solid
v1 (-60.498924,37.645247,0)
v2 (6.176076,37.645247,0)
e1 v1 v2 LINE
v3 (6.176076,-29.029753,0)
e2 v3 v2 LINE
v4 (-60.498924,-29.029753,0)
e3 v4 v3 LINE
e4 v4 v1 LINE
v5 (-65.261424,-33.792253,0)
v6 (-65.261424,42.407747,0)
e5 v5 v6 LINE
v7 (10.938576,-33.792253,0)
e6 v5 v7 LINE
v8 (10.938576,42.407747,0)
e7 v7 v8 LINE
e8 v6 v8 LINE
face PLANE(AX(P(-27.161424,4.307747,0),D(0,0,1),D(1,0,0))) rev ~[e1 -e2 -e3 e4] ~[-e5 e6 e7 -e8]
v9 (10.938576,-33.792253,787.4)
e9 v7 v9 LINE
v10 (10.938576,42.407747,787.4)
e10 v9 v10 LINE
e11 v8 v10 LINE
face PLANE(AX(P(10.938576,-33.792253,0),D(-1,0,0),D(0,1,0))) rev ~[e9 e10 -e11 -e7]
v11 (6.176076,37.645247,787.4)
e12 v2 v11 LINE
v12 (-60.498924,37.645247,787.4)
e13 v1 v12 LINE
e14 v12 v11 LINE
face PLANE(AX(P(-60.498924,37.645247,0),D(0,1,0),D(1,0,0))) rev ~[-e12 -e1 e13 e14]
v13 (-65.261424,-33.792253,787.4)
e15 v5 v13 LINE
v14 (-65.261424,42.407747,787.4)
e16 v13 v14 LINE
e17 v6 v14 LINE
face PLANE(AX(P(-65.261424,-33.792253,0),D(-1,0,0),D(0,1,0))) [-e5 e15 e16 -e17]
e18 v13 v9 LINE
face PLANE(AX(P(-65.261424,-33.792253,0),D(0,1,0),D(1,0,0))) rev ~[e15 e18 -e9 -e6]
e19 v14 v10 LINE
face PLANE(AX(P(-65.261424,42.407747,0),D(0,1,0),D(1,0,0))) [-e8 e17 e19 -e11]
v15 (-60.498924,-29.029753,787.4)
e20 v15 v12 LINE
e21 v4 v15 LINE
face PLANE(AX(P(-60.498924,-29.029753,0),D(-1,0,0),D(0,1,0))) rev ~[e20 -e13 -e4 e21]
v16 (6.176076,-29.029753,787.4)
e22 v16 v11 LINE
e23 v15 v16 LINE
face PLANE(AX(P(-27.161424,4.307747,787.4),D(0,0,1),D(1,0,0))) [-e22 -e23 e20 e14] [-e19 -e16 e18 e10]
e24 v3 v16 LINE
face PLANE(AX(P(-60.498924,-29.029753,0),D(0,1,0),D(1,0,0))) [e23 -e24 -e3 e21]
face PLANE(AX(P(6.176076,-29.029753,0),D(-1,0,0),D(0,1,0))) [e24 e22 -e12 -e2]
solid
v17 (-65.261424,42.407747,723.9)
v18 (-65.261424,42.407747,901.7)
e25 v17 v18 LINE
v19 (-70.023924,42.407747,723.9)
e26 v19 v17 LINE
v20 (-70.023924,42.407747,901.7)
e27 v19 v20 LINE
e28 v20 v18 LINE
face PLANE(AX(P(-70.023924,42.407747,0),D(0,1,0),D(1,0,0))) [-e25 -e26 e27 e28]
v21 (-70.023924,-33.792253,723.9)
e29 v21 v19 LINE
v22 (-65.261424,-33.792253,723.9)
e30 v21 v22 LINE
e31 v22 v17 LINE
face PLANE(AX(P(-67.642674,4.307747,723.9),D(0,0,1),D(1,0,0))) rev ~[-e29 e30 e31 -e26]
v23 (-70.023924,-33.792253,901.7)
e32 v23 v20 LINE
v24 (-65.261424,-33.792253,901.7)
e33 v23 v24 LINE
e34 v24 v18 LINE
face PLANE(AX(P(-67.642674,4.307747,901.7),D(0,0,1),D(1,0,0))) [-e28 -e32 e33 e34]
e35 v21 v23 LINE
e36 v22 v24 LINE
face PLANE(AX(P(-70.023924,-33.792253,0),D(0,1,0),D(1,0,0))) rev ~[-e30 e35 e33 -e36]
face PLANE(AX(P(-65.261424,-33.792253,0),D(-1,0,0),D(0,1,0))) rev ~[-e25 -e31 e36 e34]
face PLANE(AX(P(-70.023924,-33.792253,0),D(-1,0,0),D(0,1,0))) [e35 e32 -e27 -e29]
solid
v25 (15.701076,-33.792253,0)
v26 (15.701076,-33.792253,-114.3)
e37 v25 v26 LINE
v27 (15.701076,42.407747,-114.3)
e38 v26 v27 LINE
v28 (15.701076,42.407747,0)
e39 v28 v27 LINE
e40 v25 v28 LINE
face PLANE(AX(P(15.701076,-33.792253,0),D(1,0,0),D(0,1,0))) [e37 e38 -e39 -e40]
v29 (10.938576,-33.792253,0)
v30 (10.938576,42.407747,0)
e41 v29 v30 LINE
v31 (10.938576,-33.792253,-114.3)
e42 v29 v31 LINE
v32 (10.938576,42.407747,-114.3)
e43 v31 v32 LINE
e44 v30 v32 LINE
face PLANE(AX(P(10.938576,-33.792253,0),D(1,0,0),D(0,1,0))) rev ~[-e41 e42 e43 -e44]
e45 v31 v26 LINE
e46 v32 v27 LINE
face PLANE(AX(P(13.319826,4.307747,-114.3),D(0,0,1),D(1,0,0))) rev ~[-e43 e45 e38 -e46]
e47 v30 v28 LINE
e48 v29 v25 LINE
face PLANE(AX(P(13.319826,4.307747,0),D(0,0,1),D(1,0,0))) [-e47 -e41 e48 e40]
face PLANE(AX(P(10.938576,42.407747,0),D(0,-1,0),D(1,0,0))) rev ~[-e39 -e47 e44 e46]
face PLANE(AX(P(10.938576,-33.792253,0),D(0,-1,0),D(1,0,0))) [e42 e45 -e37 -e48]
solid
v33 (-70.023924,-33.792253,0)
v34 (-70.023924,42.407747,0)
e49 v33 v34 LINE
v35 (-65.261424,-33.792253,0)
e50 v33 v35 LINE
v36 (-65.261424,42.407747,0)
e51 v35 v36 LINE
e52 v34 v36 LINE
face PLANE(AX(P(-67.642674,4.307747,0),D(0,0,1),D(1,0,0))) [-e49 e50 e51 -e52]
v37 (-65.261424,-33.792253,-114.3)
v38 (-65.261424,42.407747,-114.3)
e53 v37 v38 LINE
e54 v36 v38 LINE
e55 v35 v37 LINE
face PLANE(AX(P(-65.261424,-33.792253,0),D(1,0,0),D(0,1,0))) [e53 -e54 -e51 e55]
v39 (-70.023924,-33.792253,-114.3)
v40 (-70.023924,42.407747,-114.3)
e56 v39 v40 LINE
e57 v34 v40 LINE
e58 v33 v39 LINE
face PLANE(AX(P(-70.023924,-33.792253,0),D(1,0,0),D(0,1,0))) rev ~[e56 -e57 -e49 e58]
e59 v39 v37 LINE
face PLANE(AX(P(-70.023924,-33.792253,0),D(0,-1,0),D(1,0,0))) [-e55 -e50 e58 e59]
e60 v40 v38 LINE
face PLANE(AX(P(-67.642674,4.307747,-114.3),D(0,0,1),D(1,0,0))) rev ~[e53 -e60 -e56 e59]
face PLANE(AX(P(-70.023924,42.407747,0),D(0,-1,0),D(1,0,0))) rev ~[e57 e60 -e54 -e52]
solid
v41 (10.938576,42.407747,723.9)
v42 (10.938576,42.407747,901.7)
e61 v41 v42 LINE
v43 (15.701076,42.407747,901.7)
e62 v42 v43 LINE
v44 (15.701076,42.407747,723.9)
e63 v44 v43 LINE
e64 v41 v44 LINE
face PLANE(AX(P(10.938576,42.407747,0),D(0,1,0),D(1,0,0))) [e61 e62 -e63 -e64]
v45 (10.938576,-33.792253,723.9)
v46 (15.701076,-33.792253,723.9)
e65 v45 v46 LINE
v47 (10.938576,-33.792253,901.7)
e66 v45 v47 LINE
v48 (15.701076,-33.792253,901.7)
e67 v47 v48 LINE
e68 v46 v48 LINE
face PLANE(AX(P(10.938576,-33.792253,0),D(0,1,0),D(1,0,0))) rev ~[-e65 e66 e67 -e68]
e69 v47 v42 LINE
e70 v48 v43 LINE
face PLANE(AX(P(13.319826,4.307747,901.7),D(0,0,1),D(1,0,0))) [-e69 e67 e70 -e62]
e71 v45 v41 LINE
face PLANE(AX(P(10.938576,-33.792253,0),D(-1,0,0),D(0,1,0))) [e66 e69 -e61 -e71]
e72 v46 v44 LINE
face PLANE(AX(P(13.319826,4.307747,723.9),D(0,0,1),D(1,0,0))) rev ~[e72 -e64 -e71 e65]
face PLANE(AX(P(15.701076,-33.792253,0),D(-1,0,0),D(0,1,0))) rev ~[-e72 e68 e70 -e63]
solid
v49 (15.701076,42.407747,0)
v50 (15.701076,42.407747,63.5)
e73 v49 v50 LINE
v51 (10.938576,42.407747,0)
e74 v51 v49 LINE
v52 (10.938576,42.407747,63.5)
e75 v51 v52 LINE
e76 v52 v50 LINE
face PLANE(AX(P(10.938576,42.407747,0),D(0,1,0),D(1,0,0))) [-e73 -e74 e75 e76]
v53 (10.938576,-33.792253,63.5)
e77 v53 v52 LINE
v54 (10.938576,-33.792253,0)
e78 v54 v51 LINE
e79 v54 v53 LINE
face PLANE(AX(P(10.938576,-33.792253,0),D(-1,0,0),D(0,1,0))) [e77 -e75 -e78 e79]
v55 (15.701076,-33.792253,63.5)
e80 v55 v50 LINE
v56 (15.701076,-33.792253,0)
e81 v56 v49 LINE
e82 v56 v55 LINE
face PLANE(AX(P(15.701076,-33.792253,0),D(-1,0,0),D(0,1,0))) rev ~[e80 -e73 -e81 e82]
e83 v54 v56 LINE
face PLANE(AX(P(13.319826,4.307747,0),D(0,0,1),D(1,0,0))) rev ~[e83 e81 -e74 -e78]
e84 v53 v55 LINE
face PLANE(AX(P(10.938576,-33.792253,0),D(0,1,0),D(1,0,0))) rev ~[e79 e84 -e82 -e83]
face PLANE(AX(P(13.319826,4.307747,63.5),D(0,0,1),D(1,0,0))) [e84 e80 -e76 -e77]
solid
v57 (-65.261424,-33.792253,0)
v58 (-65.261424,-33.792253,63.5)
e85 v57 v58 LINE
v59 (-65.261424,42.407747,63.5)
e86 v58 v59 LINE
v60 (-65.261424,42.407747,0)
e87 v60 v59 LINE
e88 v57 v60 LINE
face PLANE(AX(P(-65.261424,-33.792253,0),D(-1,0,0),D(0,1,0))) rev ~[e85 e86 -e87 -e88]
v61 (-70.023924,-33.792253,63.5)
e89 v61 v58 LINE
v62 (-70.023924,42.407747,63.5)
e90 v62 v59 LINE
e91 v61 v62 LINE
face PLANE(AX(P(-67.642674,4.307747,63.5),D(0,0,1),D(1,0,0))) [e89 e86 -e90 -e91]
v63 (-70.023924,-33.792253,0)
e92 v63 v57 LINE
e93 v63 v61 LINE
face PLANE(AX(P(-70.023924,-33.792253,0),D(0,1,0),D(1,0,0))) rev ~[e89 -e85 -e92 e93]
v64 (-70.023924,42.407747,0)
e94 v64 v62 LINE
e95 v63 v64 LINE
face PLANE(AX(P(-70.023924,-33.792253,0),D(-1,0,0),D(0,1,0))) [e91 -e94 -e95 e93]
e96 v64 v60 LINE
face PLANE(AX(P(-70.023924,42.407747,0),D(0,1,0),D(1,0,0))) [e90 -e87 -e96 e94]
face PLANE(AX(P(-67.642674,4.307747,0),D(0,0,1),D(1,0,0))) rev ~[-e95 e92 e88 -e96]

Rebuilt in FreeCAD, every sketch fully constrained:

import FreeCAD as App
import Part
import Sketcher

V = App.Vector
Q = App.Units.Quantity


def add_polygon(sketch, points):
    """Adds a closed chain of lines whose ends are joined by coincident constraints."""
    first, n = sketch.GeometryCount, len(points)
    for a, b in zip(points, points[1:] + points[:1]):
        sketch.addGeometry(Part.LineSegment(App.Vector(*a, 0), App.Vector(*b, 0)), False)
    for i in range(n):
        sketch.addConstraint(Sketcher.Constraint("Coincident", first + i, 2, first + (i + 1) % n, 1))

doc = App.newDocument("Part")
body = doc.addObject("PartDesign::Body", "Body")

# Sketch on XY plane
sketch1 = body.newObject("Sketcher::SketchObject", "Sketch")
sketch1.AttachmentSupport = (doc.getObject("XY_Plane"), [""])
sketch1.MapMode = "FlatFace"
add_polygon(sketch1, [(-65.261424, 42.407747), (-65.261424, -33.792253), (10.938576, -33.792253), (10.938576, 42.407747)])  # lines 0-3
add_polygon(sketch1, [(6.176076, -29.029753), (-60.498924, -29.029753), (-60.498924, 37.645247), (6.176076, 37.645247)])  # lines 4-7
sketch1.addConstraint(Sketcher.Constraint("Vertical", 0))
sketch1.addConstraint(Sketcher.Constraint("Horizontal", 1))
sketch1.addConstraint(Sketcher.Constraint("Vertical", 2))
sketch1.addConstraint(Sketcher.Constraint("Horizontal", 3))
sketch1.addConstraint(Sketcher.Constraint("Horizontal", 4))
sketch1.addConstraint(Sketcher.Constraint("Vertical", 5))
sketch1.addConstraint(Sketcher.Constraint("Horizontal", 6))
sketch1.addConstraint(Sketcher.Constraint("Vertical", 7))
sketch1.addConstraint(Sketcher.Constraint("Equal", 3, 0))
sketch1.addConstraint(Sketcher.Constraint("Equal", 6, 5))
sketch1.addConstraint(Sketcher.Constraint("DistanceX", 1, 1, 1, 2, Q("3 in")))
sketch1.addConstraint(Sketcher.Constraint("DistanceX", 4, 2, 4, 1, Q("2.625 in")))
sketch1.addConstraint(Sketcher.Constraint("DistanceX", 0, 2, 4, 2, Q("0.1875 in")))
sketch1.addConstraint(Sketcher.Constraint("DistanceY", 0, 2, 4, 2, Q("0.1875 in")))
sketch1.addConstraint(Sketcher.Constraint("DistanceX", 0, 2, -1, 1, 65.261424))
sketch1.addConstraint(Sketcher.Constraint("DistanceY", 0, 2, -1, 1, 33.792253))
pad1 = body.newObject("PartDesign::Pad", "Pad")
pad1.Profile = sketch1
pad1.Length = Q("31 in")
body2 = doc.addObject("PartDesign::Body", "Body001")
body2.AllowCompound = True

# Sketch on XY plane
sketch2 = body2.newObject("Sketcher::SketchObject", "Sketch001")
sketch2.AttachmentSupport = (doc.getObject("XY_Plane001"), [""])
sketch2.MapMode = "FlatFace"
add_polygon(sketch2, [(10.938576, 42.407747), (10.938576, -33.792253), (15.701076, -33.792253), (15.701076, 42.407747)])  # lines 0-3
add_polygon(sketch2, [(-70.023924, 42.407747), (-70.023924, -33.792253), (-65.261424, -33.792253), (-65.261424, 42.407747)])  # lines 4-7
sketch2.addConstraint(Sketcher.Constraint("Vertical", 0))
sketch2.addConstraint(Sketcher.Constraint("Horizontal", 1))
sketch2.addConstraint(Sketcher.Constraint("Vertical", 2))
sketch2.addConstraint(Sketcher.Constraint("Horizontal", 3))
sketch2.addConstraint(Sketcher.Constraint("Vertical", 4))
sketch2.addConstraint(Sketcher.Constraint("Horizontal", 5))
sketch2.addConstraint(Sketcher.Constraint("Vertical", 6))
sketch2.addConstraint(Sketcher.Constraint("Horizontal", 7))
sketch2.addConstraint(Sketcher.Constraint("Horizontal", 1, 2, 4, 2))
sketch2.addConstraint(Sketcher.Constraint("Horizontal", 3, 2, 6, 2))
sketch2.addConstraint(Sketcher.Constraint("Equal", 3, 5))
sketch2.addConstraint(Sketcher.Constraint("DistanceY", 0, 2, 0, 1, Q("3 in")))
sketch2.addConstraint(Sketcher.Constraint("DistanceX", 5, 2, 0, 2, Q("3 in")))
sketch2.addConstraint(Sketcher.Constraint("DistanceX", 1, 1, 1, 2, Q("0.1875 in")))
sketch2.addConstraint(Sketcher.Constraint("DistanceX", -1, 1, 0, 2, 10.938576))
sketch2.addConstraint(Sketcher.Constraint("DistanceY", 0, 2, -1, 1, 33.792253))
pad2 = body2.newObject("PartDesign::Pad", "Pad001")
pad2.Profile = sketch2
pad2.Length = Q("4.5 in")
pad2.Reversed = True
body3 = doc.addObject("PartDesign::Body", "Body002")
body3.AllowCompound = True

# Sketch on XY plane
sketch3 = body3.newObject("Sketcher::SketchObject", "Sketch002")
sketch3.AttachmentSupport = (doc.getObject("XY_Plane002"), [""])
sketch3.MapMode = "FlatFace"
add_polygon(sketch3, [(10.938576, 42.407747), (10.938576, -33.792253), (15.701076, -33.792253), (15.701076, 42.407747)])  # lines 0-3
add_polygon(sketch3, [(-70.023924, 42.407747), (-70.023924, -33.792253), (-65.261424, -33.792253), (-65.261424, 42.407747)])  # lines 4-7
sketch3.addConstraint(Sketcher.Constraint("Vertical", 0))
sketch3.addConstraint(Sketcher.Constraint("Horizontal", 1))
sketch3.addConstraint(Sketcher.Constraint("Vertical", 2))
sketch3.addConstraint(Sketcher.Constraint("Horizontal", 3))
sketch3.addConstraint(Sketcher.Constraint("Vertical", 4))
sketch3.addConstraint(Sketcher.Constraint("Horizontal", 5))
sketch3.addConstraint(Sketcher.Constraint("Vertical", 6))
sketch3.addConstraint(Sketcher.Constraint("Horizontal", 7))
sketch3.addConstraint(Sketcher.Constraint("Horizontal", 1, 2, 4, 2))
sketch3.addConstraint(Sketcher.Constraint("Horizontal", 3, 2, 6, 2))
sketch3.addConstraint(Sketcher.Constraint("Equal", 3, 5))
sketch3.addConstraint(Sketcher.Constraint("DistanceY", 0, 2, 0, 1, Q("3 in")))
sketch3.addConstraint(Sketcher.Constraint("DistanceX", 5, 2, 0, 2, Q("3 in")))
sketch3.addConstraint(Sketcher.Constraint("DistanceX", 1, 1, 1, 2, Q("0.1875 in")))
sketch3.addConstraint(Sketcher.Constraint("DistanceX", -1, 1, 0, 2, 10.938576))
sketch3.addConstraint(Sketcher.Constraint("DistanceY", 0, 2, -1, 1, 33.792253))
pad3 = body3.newObject("PartDesign::Pad", "Pad002")
pad3.Profile = sketch3
pad3.Length = Q("35.5 in")

# Sketch on XY plane
sketch4 = body3.newObject("Sketcher::SketchObject", "Sketch003")
sketch4.AttachmentSupport = (doc.getObject("XY_Plane002"), [""])
sketch4.MapMode = "FlatFace"
add_polygon(sketch4, [(10.938576, 42.407747), (10.938576, -33.792253), (15.701076, -33.792253), (15.701076, 42.407747)])  # lines 0-3
add_polygon(sketch4, [(-70.023924, 42.407747), (-70.023924, -33.792253), (-65.261424, -33.792253), (-65.261424, 42.407747)])  # lines 4-7
sketch4.addConstraint(Sketcher.Constraint("Vertical", 0))
sketch4.addConstraint(Sketcher.Constraint("Horizontal", 1))
sketch4.addConstraint(Sketcher.Constraint("Vertical", 2))
sketch4.addConstraint(Sketcher.Constraint("Horizontal", 3))
sketch4.addConstraint(Sketcher.Constraint("Vertical", 4))
sketch4.addConstraint(Sketcher.Constraint("Horizontal", 5))
sketch4.addConstraint(Sketcher.Constraint("Vertical", 6))
sketch4.addConstraint(Sketcher.Constraint("Horizontal", 7))
sketch4.addConstraint(Sketcher.Constraint("Horizontal", 1, 2, 4, 2))
sketch4.addConstraint(Sketcher.Constraint("Horizontal", 3, 2, 6, 2))
sketch4.addConstraint(Sketcher.Constraint("Equal", 3, 5))
sketch4.addConstraint(Sketcher.Constraint("DistanceY", 0, 2, 0, 1, Q("3 in")))
sketch4.addConstraint(Sketcher.Constraint("DistanceX", 5, 2, 0, 2, Q("3 in")))
sketch4.addConstraint(Sketcher.Constraint("DistanceX", 1, 1, 1, 2, Q("0.1875 in")))
sketch4.addConstraint(Sketcher.Constraint("DistanceX", -1, 1, 0, 2, 10.938576))
sketch4.addConstraint(Sketcher.Constraint("DistanceY", 0, 2, -1, 1, 33.792253))
pocket1 = body3.newObject("PartDesign::Pocket", "Pocket")
pocket1.Profile = sketch4
pocket1.Length = Q("28.5 in")
pocket1.Reversed = True
body4 = doc.addObject("PartDesign::Body", "Body003")
body4.AllowCompound = True

# Sketch on XY plane
sketch5 = body4.newObject("Sketcher::SketchObject", "Sketch004")
sketch5.AttachmentSupport = (doc.getObject("XY_Plane003"), [""])
sketch5.MapMode = "FlatFace"
add_polygon(sketch5, [(10.938576, 42.407747), (10.938576, -33.792253), (15.701076, -33.792253), (15.701076, 42.407747)])  # lines 0-3
add_polygon(sketch5, [(-70.023924, 42.407747), (-70.023924, -33.792253), (-65.261424, -33.792253), (-65.261424, 42.407747)])  # lines 4-7
sketch5.addConstraint(Sketcher.Constraint("Vertical", 0))
sketch5.addConstraint(Sketcher.Constraint("Horizontal", 1))
sketch5.addConstraint(Sketcher.Constraint("Vertical", 2))
sketch5.addConstraint(Sketcher.Constraint("Horizontal", 3))
sketch5.addConstraint(Sketcher.Constraint("Vertical", 4))
sketch5.addConstraint(Sketcher.Constraint("Horizontal", 5))
sketch5.addConstraint(Sketcher.Constraint("Vertical", 6))
sketch5.addConstraint(Sketcher.Constraint("Horizontal", 7))
sketch5.addConstraint(Sketcher.Constraint("Horizontal", 1, 2, 4, 2))
sketch5.addConstraint(Sketcher.Constraint("Horizontal", 3, 2, 6, 2))
sketch5.addConstraint(Sketcher.Constraint("Equal", 3, 5))
sketch5.addConstraint(Sketcher.Constraint("DistanceY", 0, 2, 0, 1, Q("3 in")))
sketch5.addConstraint(Sketcher.Constraint("DistanceX", 5, 2, 0, 2, Q("3 in")))
sketch5.addConstraint(Sketcher.Constraint("DistanceX", 1, 1, 1, 2, Q("0.1875 in")))
sketch5.addConstraint(Sketcher.Constraint("DistanceX", -1, 1, 0, 2, 10.938576))
sketch5.addConstraint(Sketcher.Constraint("DistanceY", 0, 2, -1, 1, 33.792253))
pad4 = body4.newObject("PartDesign::Pad", "Pad003")
pad4.Profile = sketch5
pad4.Length = Q("2.5 in")

doc.recompute()
